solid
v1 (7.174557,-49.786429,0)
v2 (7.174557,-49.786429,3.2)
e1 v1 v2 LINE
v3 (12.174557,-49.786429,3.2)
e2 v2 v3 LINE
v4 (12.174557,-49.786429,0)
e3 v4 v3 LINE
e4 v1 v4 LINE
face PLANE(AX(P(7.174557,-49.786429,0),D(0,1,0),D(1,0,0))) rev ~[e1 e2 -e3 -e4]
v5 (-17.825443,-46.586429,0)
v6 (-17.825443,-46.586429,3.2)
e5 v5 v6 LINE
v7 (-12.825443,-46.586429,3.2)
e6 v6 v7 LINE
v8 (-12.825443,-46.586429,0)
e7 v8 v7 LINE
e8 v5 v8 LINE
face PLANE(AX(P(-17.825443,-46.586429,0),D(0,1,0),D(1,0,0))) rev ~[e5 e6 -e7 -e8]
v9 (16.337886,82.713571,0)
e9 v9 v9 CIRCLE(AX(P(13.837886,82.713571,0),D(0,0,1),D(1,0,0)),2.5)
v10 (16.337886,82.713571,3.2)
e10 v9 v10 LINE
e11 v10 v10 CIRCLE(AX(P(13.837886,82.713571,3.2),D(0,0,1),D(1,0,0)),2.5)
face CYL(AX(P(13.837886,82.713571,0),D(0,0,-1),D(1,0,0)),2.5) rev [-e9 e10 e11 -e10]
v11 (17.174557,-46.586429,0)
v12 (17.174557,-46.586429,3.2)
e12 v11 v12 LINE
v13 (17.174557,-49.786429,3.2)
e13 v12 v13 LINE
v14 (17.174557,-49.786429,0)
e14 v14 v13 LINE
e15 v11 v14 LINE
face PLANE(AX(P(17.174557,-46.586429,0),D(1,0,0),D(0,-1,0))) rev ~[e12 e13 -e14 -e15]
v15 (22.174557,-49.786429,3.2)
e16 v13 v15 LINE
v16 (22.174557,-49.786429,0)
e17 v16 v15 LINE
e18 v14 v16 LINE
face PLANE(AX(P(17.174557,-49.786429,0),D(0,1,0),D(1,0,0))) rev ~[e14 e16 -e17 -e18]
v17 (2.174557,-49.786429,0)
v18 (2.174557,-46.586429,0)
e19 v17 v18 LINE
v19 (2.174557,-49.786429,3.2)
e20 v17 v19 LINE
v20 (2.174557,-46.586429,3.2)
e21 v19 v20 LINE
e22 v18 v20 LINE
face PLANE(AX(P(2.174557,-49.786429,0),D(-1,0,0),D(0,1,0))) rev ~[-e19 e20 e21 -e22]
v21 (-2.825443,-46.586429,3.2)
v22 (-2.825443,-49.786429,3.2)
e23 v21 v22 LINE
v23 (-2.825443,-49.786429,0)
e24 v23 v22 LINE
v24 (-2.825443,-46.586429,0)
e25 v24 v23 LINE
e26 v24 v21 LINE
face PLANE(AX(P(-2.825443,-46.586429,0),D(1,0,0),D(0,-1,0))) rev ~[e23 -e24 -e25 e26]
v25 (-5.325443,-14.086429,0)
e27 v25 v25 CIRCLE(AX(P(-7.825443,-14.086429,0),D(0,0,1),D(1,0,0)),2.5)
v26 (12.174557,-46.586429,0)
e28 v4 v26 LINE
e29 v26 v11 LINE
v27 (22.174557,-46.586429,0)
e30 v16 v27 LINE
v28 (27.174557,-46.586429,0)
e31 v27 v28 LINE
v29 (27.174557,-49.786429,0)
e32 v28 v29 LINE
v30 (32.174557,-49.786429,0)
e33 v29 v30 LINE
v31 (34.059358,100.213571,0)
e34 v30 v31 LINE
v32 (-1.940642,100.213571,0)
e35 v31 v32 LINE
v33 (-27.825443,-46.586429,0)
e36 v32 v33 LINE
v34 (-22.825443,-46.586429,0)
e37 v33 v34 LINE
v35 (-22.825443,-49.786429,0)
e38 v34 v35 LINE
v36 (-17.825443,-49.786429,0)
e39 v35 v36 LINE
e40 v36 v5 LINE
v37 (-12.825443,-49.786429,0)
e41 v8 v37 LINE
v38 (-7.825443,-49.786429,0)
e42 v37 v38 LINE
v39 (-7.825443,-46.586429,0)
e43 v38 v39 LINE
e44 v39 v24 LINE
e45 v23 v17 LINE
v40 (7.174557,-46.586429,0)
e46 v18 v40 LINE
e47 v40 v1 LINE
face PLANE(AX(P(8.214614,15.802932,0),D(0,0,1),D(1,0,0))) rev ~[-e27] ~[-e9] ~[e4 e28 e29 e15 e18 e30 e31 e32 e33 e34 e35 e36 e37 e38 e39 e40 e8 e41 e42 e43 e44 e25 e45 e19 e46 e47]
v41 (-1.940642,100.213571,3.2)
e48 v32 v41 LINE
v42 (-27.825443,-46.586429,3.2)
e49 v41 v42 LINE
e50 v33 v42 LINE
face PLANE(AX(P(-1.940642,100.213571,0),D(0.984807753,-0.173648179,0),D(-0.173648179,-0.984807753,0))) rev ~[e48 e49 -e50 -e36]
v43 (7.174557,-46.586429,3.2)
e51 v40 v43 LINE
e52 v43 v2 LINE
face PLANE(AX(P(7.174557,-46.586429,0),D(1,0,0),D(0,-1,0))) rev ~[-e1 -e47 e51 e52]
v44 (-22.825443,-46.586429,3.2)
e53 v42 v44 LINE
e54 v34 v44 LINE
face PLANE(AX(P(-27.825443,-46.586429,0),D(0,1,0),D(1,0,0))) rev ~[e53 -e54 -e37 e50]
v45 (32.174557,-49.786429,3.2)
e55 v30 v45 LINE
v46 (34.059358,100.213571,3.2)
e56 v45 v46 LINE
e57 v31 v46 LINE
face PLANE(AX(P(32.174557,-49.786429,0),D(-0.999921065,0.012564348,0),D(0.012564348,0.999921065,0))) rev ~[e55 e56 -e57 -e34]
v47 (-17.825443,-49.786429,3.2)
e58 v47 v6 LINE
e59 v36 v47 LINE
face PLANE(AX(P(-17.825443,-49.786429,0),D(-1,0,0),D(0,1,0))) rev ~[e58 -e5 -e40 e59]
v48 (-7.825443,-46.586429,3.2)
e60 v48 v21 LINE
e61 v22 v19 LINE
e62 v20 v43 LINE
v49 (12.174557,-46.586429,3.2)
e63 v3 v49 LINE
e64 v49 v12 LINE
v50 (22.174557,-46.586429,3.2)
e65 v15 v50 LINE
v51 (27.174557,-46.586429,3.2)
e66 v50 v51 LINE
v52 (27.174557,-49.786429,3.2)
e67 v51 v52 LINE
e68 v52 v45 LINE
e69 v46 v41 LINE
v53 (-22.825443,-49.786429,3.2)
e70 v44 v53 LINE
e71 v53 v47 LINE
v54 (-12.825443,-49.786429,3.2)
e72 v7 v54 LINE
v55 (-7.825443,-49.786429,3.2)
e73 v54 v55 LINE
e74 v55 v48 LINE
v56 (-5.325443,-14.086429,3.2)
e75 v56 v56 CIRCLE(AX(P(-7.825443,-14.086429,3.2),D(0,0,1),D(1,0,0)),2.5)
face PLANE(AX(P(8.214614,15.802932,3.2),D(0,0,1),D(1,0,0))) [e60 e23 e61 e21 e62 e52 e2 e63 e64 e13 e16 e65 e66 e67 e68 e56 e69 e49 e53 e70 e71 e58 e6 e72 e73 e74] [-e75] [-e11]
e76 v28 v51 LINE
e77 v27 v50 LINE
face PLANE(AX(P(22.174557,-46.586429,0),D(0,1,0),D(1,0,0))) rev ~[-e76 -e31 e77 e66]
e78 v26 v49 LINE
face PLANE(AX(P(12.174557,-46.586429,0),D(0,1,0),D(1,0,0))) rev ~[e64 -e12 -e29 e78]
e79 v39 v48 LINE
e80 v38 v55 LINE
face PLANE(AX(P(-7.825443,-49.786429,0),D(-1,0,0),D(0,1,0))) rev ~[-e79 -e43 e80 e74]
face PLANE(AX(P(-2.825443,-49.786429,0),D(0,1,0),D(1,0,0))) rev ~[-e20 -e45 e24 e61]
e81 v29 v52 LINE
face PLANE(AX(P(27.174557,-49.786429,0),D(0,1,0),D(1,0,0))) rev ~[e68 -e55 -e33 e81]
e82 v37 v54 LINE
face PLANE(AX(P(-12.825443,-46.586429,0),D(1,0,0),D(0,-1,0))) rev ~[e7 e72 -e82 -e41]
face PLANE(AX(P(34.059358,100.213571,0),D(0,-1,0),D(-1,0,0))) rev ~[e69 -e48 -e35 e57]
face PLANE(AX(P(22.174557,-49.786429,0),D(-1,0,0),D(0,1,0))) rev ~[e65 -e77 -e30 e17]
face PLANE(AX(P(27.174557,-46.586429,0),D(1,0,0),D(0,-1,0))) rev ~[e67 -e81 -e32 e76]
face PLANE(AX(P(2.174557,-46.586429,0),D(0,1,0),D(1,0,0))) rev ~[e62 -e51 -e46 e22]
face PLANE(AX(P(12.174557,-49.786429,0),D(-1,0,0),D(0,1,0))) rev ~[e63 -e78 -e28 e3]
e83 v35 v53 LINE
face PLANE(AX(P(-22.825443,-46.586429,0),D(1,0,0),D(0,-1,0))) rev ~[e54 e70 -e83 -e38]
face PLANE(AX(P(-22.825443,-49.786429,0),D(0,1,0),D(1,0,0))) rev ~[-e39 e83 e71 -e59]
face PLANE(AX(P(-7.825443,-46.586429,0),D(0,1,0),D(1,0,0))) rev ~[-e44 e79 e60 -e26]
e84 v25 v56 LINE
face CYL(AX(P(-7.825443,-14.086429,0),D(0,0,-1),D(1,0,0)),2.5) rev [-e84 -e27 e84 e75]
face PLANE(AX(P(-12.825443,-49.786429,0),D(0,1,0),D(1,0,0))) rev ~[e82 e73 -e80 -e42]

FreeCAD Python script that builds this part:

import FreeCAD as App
import Part
import Sketcher
Q = App.Units.Quantity

doc = App.newDocument("Part")
body = doc.addObject("PartDesign::Body", "Body")

# Sketch on XY plane
sketch1 = body.newObject("Sketcher::SketchObject", "Sketch")
sketch1.AttachmentSupport = (doc.getObject("XY_Plane"), [""])
sketch1.MapMode = "FlatFace"
sketch1.addGeometry([
    Part.LineSegment(App.Vector(34.1, 100.2, 0), App.Vector(-1.9, 100.2, 0)),  # 0
    Part.LineSegment(App.Vector(-1.9, 100.2, 0), App.Vector(-27.8, -46.6, 0)),  # 1
    Part.LineSegment(App.Vector(-27.8, -46.6, 0), App.Vector(-22.8, -46.6, 0)),  # 2
    Part.LineSegment(App.Vector(-22.8, -46.6, 0), App.Vector(-22.8, -49.8, 0)),  # 3
    Part.LineSegment(App.Vector(-22.8, -49.8, 0), App.Vector(-17.8, -49.8, 0)),  # 4
    Part.LineSegment(App.Vector(-17.8, -49.8, 0), App.Vector(-17.8, -46.6, 0)),  # 5
    Part.LineSegment(App.Vector(-17.8, -46.6, 0), App.Vector(-12.8, -46.6, 0)),  # 6
    Part.LineSegment(App.Vector(-12.8, -46.6, 0), App.Vector(-12.8, -49.8, 0)),  # 7
    Part.LineSegment(App.Vector(-12.8, -49.8, 0), App.Vector(-7.8, -49.8, 0)),  # 8
    Part.LineSegment(App.Vector(-7.8, -49.8, 0), App.Vector(-7.8, -46.6, 0)),  # 9
    Part.LineSegment(App.Vector(-7.8, -46.6, 0), App.Vector(-2.8, -46.6, 0)),  # 10
    Part.LineSegment(App.Vector(-2.8, -46.6, 0), App.Vector(-2.8, -49.8, 0)),  # 11
    Part.LineSegment(App.Vector(-2.8, -49.8, 0), App.Vector(2.2, -49.8, 0)),  # 12
    Part.LineSegment(App.Vector(2.2, -49.8, 0), App.Vector(2.2, -46.6, 0)),  # 13
    Part.LineSegment(App.Vector(2.2, -46.6, 0), App.Vector(7.2, -46.6, 0)),  # 14
    Part.LineSegment(App.Vector(7.2, -46.6, 0), App.Vector(7.2, -49.8, 0)),  # 15
    Part.LineSegment(App.Vector(7.2, -49.8, 0), App.Vector(12.2, -49.8, 0)),  # 16
    Part.LineSegment(App.Vector(12.2, -49.8, 0), App.Vector(12.2, -46.6, 0)),  # 17
    Part.LineSegment(App.Vector(12.2, -46.6, 0), App.Vector(17.2, -46.6, 0)),  # 18
    Part.LineSegment(App.Vector(17.2, -46.6, 0), App.Vector(17.2, -49.8, 0)),  # 19
    Part.LineSegment(App.Vector(17.2, -49.8, 0), App.Vector(22.2, -49.8, 0)),  # 20
    Part.LineSegment(App.Vector(22.2, -49.8, 0), App.Vector(22.2, -46.6, 0)),  # 21
    Part.LineSegment(App.Vector(22.2, -46.6, 0), App.Vector(27.2, -46.6, 0)),  # 22
    Part.LineSegment(App.Vector(27.2, -46.6, 0), App.Vector(27.2, -49.8, 0)),  # 23
    Part.LineSegment(App.Vector(27.2, -49.8, 0), App.Vector(32.2, -49.8, 0)),  # 24
    Part.LineSegment(App.Vector(32.2, -49.8, 0), App.Vector(34.1, 100.2, 0)),  # 25
    Part.Circle(App.Vector(-7.8, -14.1, 0), App.Vector(0, 0, 1), 2.5),  # 26
    Part.Circle(App.Vector(13.8, 82.7, 0), App.Vector(0, 0, 1), 2.5),  # 27
], False)
sketch1.addConstraint([
    Sketcher.Constraint("Coincident", 0, 2, 1, 1),
    Sketcher.Constraint("Coincident", 1, 2, 2, 1),
    Sketcher.Constraint("Coincident", 2, 2, 3, 1),
    Sketcher.Constraint("Coincident", 3, 2, 4, 1),
    Sketcher.Constraint("Coincident", 4, 2, 5, 1),
    Sketcher.Constraint("Coincident", 5, 2, 6, 1),
    Sketcher.Constraint("Coincident", 6, 2, 7, 1),
    Sketcher.Constraint("Coincident", 7, 2, 8, 1),
    Sketcher.Constraint("Coincident", 8, 2, 9, 1),
    Sketcher.Constraint("Coincident", 9, 2, 10, 1),
    Sketcher.Constraint("Coincident", 10, 2, 11, 1),
    Sketcher.Constraint("Coincident", 11, 2, 12, 1),
    Sketcher.Constraint("Coincident", 12, 2, 13, 1),
    Sketcher.Constraint("Coincident", 13, 2, 14, 1),
    Sketcher.Constraint("Coincident", 14, 2, 15, 1),
    Sketcher.Constraint("Coincident", 15, 2, 16, 1),
    Sketcher.Constraint("Coincident", 16, 2, 17, 1),
    Sketcher.Constraint("Coincident", 17, 2, 18, 1),
    Sketcher.Constraint("Coincident", 18, 2, 19, 1),
    Sketcher.Constraint("Coincident", 19, 2, 20, 1),
    Sketcher.Constraint("Coincident", 20, 2, 21, 1),
    Sketcher.Constraint("Coincident", 21, 2, 22, 1),
    Sketcher.Constraint("Coincident", 22, 2, 23, 1),
    Sketcher.Constraint("Coincident", 23, 2, 24, 1),
    Sketcher.Constraint("Coincident", 24, 2, 25, 1),
    Sketcher.Constraint("Coincident", 25, 2, 0, 1),
    Sketcher.Constraint("Horizontal", 0),
    Sketcher.Constraint("Horizontal", 2),
    Sketcher.Constraint("Vertical", 3),
    Sketcher.Constraint("Horizontal", 4),
    Sketcher.Constraint("Vertical", 5),
    Sketcher.Constraint("Horizontal", 6),
    Sketcher.Constraint("Vertical", 7),
    Sketcher.Constraint("Horizontal", 8),
    Sketcher.Constraint("Vertical", 9),
    Sketcher.Constraint("Horizontal", 10),
    Sketcher.Constraint("Vertical", 11),
    Sketcher.Constraint("Horizontal", 12),
    Sketcher.Constraint("Vertical", 13),
    Sketcher.Constraint("Horizontal", 14),
    Sketcher.Constraint("Vertical", 15),
    Sketcher.Constraint("Horizontal", 16),
    Sketcher.Constraint("Vertical", 17),
    Sketcher.Constraint("Horizontal", 18),
    Sketcher.Constraint("Vertical", 19),
    Sketcher.Constraint("Horizontal", 20),
    Sketcher.Constraint("Vertical", 21),
    Sketcher.Constraint("Horizontal", 22),
    Sketcher.Constraint("Vertical", 23),
    Sketcher.Constraint("Horizontal", 24),
    Sketcher.Constraint("Equal", 26, 27),
    Sketcher.Constraint("Horizontal", 2, 2, 5, 2),
    Sketcher.Constraint("Horizontal", 4, 2, 7, 2),
    Sketcher.Constraint("Horizontal", 6, 2, 9, 2),
    Sketcher.Constraint("Horizontal", 8, 2, 11, 2),
    Sketcher.Constraint("Horizontal", 10, 2, 13, 2),
    Sketcher.Constraint("Horizontal", 12, 2, 15, 2),
    Sketcher.Constraint("Horizontal", 14, 2, 17, 2),
    Sketcher.Constraint("Horizontal", 16, 2, 19, 2),
    Sketcher.Constraint("Horizontal", 18, 2, 21, 2),
    Sketcher.Constraint("Horizontal", 20, 2, 23, 2),
    Sketcher.Constraint("Vertical", 26, 3, 8, 2),
    Sketcher.Constraint("Equal", 2, 4),
    Sketcher.Constraint("Equal", 4, 6),
    Sketcher.Constraint("Equal", 6, 8),
    Sketcher.Constraint("Equal", 8, 10),
    Sketcher.Constraint("Equal", 10, 12),
    Sketcher.Constraint("Equal", 12, 14),
    Sketcher.Constraint("Equal", 14, 16),
    Sketcher.Constraint("Equal", 16, 18),
    Sketcher.Constraint("Equal", 18, 20),
    Sketcher.Constraint("Equal", 20, 22),
    Sketcher.Constraint("Equal", 22, 24),
    Sketcher.Constraint("Diameter", 26, 5.0),
    Sketcher.Constraint("DistanceX", 0, 2, 0, 1, 36.0),
    Sketcher.Constraint("DistanceX", 2, 1, 2, 2, 5.0),
    Sketcher.Constraint("Angle", 1, Q("-100 deg")),
    Sketcher.Constraint("DistanceY", 3, 2, 3, 1, 3.2),
    Sketcher.Constraint("DistanceY", 3, 2, 0, 2, 150.0),
    Sketcher.Constraint("DistanceY", 26, 3, 27, 3, 96.8),
    Sketcher.Constraint("DistanceY", 27, 3, 0, 2, 17.5),
    Sketcher.Constraint("DistanceY", 26, 3, -1, 1, 14.086429),
    Sketcher.Constraint("DistanceX", -1, 1, 25, 2, 34.059358),
    Sketcher.Constraint("DistanceX", 26, 3, 27, 3, 21.663329),
])
pad1 = body.newObject("PartDesign::Pad", "Pad")
pad1.Profile = sketch1
pad1.Length = 3.2

doc.recompute()
